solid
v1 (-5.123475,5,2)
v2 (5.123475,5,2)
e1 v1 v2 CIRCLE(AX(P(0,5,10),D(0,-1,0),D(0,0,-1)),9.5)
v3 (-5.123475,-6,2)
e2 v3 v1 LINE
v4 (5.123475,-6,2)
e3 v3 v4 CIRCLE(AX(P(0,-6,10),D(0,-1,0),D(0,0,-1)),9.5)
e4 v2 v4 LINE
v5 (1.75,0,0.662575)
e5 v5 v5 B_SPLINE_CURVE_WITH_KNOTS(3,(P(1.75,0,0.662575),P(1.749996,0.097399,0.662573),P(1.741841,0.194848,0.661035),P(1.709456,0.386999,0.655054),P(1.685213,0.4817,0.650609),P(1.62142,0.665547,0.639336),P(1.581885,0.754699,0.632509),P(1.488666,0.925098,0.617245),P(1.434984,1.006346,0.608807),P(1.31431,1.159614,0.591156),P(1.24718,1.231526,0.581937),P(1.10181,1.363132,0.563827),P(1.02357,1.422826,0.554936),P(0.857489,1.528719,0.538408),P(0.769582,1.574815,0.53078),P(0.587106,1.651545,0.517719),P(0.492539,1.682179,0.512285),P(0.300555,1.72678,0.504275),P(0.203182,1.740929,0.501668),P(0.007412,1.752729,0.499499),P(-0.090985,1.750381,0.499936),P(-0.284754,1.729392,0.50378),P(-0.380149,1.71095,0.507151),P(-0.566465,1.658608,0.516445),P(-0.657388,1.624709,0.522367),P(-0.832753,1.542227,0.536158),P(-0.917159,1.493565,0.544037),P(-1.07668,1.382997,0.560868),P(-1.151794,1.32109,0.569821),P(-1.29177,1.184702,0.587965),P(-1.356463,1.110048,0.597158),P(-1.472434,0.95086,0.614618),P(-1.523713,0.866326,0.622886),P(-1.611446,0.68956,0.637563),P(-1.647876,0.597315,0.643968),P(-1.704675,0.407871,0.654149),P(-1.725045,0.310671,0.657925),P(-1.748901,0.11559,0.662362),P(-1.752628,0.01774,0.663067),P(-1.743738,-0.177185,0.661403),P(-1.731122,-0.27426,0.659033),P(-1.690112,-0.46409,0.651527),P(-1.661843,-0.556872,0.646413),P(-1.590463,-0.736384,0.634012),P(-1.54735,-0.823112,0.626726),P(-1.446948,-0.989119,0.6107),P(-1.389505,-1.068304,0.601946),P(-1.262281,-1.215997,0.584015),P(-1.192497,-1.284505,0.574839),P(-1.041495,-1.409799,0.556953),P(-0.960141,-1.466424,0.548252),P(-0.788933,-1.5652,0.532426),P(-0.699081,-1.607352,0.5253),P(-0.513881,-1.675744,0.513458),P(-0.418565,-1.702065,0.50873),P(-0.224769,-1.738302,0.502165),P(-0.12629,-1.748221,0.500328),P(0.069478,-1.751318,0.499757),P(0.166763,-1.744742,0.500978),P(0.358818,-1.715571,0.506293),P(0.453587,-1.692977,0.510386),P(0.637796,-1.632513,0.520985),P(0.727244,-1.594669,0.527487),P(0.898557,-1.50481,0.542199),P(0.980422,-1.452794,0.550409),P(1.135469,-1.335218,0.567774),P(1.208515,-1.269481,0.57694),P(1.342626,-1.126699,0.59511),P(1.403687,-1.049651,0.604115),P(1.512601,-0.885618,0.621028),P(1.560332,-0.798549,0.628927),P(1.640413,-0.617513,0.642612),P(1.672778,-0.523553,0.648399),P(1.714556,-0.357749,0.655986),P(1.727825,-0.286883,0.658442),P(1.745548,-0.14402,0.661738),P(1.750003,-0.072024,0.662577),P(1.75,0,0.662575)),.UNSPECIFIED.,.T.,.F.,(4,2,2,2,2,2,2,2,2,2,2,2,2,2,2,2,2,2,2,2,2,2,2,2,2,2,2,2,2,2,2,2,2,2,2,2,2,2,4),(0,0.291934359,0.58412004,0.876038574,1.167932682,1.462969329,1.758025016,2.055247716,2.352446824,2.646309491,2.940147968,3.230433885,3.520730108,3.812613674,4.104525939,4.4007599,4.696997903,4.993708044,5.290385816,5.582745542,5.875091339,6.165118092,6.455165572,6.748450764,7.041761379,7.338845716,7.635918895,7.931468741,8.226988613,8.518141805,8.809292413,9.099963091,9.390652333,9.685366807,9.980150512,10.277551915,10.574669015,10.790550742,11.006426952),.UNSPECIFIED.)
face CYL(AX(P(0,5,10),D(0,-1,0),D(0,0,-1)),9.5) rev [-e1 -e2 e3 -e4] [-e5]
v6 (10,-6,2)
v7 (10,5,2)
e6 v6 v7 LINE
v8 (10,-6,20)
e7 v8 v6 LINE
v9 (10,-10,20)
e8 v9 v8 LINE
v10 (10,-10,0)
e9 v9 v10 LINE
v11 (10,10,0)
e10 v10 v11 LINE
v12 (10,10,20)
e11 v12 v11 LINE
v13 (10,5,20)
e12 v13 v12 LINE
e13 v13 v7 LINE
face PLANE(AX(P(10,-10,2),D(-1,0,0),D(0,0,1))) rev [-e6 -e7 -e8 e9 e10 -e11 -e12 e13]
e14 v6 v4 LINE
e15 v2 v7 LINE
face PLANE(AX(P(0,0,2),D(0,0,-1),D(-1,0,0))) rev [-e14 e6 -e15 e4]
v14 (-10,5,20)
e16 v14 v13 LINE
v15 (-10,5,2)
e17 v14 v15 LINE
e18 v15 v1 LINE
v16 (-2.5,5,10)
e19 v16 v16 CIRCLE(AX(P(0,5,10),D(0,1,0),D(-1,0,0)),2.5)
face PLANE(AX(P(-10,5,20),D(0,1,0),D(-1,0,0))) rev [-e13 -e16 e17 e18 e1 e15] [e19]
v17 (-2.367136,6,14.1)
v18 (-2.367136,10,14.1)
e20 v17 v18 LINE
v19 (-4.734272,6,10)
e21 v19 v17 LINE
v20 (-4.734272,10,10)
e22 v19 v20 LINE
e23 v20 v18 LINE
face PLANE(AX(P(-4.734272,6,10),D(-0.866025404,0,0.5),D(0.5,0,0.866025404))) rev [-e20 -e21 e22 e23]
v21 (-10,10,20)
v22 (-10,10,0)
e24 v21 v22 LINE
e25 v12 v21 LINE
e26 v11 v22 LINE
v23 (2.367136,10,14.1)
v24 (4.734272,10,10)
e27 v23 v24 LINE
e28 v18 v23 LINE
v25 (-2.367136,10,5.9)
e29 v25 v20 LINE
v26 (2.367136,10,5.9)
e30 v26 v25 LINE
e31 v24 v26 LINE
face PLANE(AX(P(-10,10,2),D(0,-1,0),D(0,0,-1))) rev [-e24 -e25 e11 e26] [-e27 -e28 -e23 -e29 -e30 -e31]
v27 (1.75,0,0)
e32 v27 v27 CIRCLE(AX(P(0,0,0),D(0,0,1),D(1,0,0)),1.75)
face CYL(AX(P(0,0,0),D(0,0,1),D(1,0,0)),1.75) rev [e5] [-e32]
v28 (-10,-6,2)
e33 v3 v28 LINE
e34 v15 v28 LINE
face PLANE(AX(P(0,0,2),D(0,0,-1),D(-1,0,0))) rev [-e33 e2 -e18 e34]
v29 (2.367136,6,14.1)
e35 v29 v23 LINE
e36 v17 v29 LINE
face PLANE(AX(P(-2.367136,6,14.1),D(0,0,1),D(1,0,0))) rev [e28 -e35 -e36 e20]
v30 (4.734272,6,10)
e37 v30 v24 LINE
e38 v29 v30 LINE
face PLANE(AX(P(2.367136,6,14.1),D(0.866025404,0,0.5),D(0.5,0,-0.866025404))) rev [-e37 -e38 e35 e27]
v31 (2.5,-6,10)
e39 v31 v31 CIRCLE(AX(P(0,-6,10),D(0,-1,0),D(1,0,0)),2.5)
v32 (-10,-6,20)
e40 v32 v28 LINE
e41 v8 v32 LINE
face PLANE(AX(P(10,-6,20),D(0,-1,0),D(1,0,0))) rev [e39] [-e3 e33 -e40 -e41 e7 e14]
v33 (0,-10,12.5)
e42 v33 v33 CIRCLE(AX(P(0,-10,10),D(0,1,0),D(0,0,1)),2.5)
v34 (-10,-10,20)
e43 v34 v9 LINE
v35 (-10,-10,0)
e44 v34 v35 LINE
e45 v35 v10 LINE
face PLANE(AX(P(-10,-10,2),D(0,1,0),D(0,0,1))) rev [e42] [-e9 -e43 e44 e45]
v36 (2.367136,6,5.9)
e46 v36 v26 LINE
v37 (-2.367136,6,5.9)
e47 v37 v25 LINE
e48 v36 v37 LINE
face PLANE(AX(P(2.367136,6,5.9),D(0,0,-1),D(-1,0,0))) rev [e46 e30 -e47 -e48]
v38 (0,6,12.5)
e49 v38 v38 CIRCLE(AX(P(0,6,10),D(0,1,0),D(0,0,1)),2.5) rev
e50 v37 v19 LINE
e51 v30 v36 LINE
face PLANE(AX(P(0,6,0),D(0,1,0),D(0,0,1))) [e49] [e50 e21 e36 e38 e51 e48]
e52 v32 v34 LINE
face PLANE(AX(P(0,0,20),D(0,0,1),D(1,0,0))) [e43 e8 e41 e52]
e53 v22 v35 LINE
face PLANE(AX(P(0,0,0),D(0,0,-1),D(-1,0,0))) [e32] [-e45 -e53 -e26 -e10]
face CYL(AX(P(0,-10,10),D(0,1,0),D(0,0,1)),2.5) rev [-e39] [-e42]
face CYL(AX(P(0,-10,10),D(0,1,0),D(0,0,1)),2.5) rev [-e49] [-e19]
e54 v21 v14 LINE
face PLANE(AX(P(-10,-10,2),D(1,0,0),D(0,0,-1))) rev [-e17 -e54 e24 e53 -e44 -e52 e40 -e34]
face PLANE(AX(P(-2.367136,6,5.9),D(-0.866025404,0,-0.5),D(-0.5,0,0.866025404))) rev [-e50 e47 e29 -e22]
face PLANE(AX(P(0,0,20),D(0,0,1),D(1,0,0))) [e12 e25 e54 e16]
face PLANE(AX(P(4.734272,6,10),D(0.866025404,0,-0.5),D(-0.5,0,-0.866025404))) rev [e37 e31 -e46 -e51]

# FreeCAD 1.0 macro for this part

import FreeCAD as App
import Part
import Sketcher
Q = App.Units.Quantity


def add_polygon(sketch, points):
    """Adds a closed chain of lines whose ends are joined by coincident constraints."""
    first, n = sketch.GeometryCount, len(points)
    for a, b in zip(points, points[1:] + points[:1]):
        sketch.addGeometry(Part.LineSegment(App.Vector(*a, 0), App.Vector(*b, 0)), False)
    for i in range(n):
        sketch.addConstraint(Sketcher.Constraint("Coincident", first + i, 2, first + (i + 1) % n, 1))

doc = App.newDocument("Part")
body = doc.addObject("PartDesign::Body", "Body")

sketch1 = doc.addObject("Sketcher::SketchObject", "Sketch")
body.addObject(sketch1)
sketch1.AttachmentSupport = (doc.XY_Plane, [""])
sketch1.MapMode = "FlatFace"
add_polygon(sketch1, [(-10, 10), (-10, -10), (10, -10), (10, 10)])
sketch1.addConstraint([
    Sketcher.Constraint("Vertical", 0),
    Sketcher.Constraint("Horizontal", 1),
    Sketcher.Constraint("Vertical", 2),
    Sketcher.Constraint("Horizontal", 3),
    Sketcher.Constraint("Symmetric", 0, 2, 2, 2, -1, 1),
    Sketcher.Constraint("Equal", 3, 0),
    Sketcher.Constraint("DistanceX", 1, 1, 1, 2, 20.0),
])
pad1 = doc.addObject("PartDesign::Pad", "Pad")
body.addObject(pad1)
pad1.Profile = sketch1
pad1.Length = 2

sketch2 = doc.addObject("Sketcher::SketchObject", "Sketch001")
body.addObject(sketch2)
sketch2.AttachmentSupport = (doc.XY_Plane, [""])
sketch2.MapMode = "FlatFace"
sketch2.AttachmentOffset = App.Placement(App.Vector(0, 0, 2), App.Rotation())
sketch2.addGeometry(Part.Circle(App.Vector(0, 0, 0), App.Vector(0, 0, 1), 1.8), False)
sketch2.addConstraint([
    Sketcher.Constraint("Coincident", 0, 3, -1, 1),
    Sketcher.Constraint("Diameter", 0, 3.5),
])
pocket1 = doc.addObject("PartDesign::Pocket", "Pocket")
body.addObject(pocket1)
pocket1.Profile = sketch2
pocket1.Type = "ThroughAll"

sketch3 = doc.addObject("Sketcher::SketchObject", "Sketch002")
body.addObject(sketch3)
sketch3.AttachmentSupport = (doc.XY_Plane, [""])
sketch3.MapMode = "FlatFace"
sketch3.AttachmentOffset = App.Placement(App.Vector(0, 0, 2), App.Rotation())
add_polygon(sketch3, [(-10, 10), (-10, 5), (10, 5), (10, 10)])
add_polygon(sketch3, [(-10, -6), (-10, -10), (10, -10), (10, -6)])
sketch3.addConstraint([
    Sketcher.Constraint("Vertical", 0),
    Sketcher.Constraint("Horizontal", 1),
    Sketcher.Constraint("Vertical", 2),
    Sketcher.Constraint("Horizontal", 3),
    Sketcher.Constraint("Vertical", 4),
    Sketcher.Constraint("Horizontal", 5),
    Sketcher.Constraint("Vertical", 6),
    Sketcher.Constraint("Horizontal", 7),
    Sketcher.Constraint("Symmetric", 2, 2, 4, 2, -1, 1),
    Sketcher.Constraint("Vertical", 3, 2, 4, 2),
    Sketcher.Constraint("Vertical", 2, 2, 5, 2),
    Sketcher.Constraint("DistanceX", 1, 1, 1, 2, 20.0),
    Sketcher.Constraint("DistanceY", 0, 2, 0, 1, 5.0),
    Sketcher.Constraint("DistanceY", 4, 2, 4, 1, 4.0),
    Sketcher.Constraint("DistanceY", -1, 1, 0, 2, 5.0),
])
pad2 = doc.addObject("PartDesign::Pad", "Pad001")
body.addObject(pad2)
pad2.Profile = sketch3
pad2.Length = 18

sketch4 = doc.addObject("Sketcher::SketchObject", "Sketch003")
body.addObject(sketch4)
sketch4.AttachmentSupport = (doc.XZ_Plane, [""])
sketch4.MapMode = "FlatFace"
sketch4.AttachmentOffset = App.Placement(App.Vector(0, 0, -10), App.Rotation())
sketch4.addGeometry(Part.Circle(App.Vector(0, 10, 0), App.Vector(0, 0, 1), 2.5), False)
sketch4.addConstraint([
    Sketcher.Constraint("PointOnObject", 0, 3, -2),
    Sketcher.Constraint("Diameter", 0, 5.0),
    Sketcher.Constraint("DistanceY", -1, 1, 0, 3, 10.0),
])
pocket2 = doc.addObject("PartDesign::Pocket", "Pocket001")
body.addObject(pocket2)
pocket2.Profile = sketch4
pocket2.Type = "ThroughAll"
pocket2.Reversed = True

sketch5 = doc.addObject("Sketcher::SketchObject", "Sketch004")
body.addObject(sketch5)
sketch5.AttachmentSupport = (doc.XZ_Plane, [""])
sketch5.MapMode = "FlatFace"
sketch5.AttachmentOffset = App.Placement(App.Vector(0, 0, -10), App.Rotation())
add_polygon(sketch5, [(4.7, 10), (2.4, 5.9), (-2.4, 5.9), (-4.7, 10), (-2.4, 14.1), (2.4, 14.1)])
sketch5.addConstraint([
    Sketcher.Constraint("Horizontal", 1),
    Sketcher.Constraint("Horizontal", 4),
    Sketcher.Constraint("Symmetric", 2, 2, 5, 2, -2),
    Sketcher.Constraint("Parallel", 0, 3),
    Sketcher.Constraint("Parallel", 2, 5),
    Sketcher.Constraint("Vertical", 1, 2, 3, 2),
    Sketcher.Constraint("Vertical", 0, 2, 4, 2),
    Sketcher.Constraint("Angle", 0, Q("-120 deg")),
    Sketcher.Constraint("DistanceY", -1, 1, 2, 2, 10.0),
    Sketcher.Constraint("DistanceY", -1, 1, 0, 2, 5.9),
    Sketcher.Constraint("DistanceX", 1, 2, 1, 1, 4.734272),
])
pocket3 = doc.addObject("PartDesign::Pocket", "Pocket002")
body.addObject(pocket3)
pocket3.Profile = sketch5
pocket3.Length = 4
pocket3.Reversed = True

sketch6 = doc.addObject("Sketcher::SketchObject", "Sketch005")
body.addObject(sketch6)
sketch6.AttachmentSupport = (doc.XZ_Plane, [""])
sketch6.MapMode = "FlatFace"
sketch6.AttachmentOffset = App.Placement(App.Vector(0, 0, 6), App.Rotation())
sketch6.addGeometry(Part.Circle(App.Vector(0, 10, 0), App.Vector(0, 0, 1), 10), False)
sketch6.addConstraint([
    Sketcher.Constraint("PointOnObject", 0, 3, -2),
    Sketcher.Constraint("Diameter", 0, 19.0),
    Sketcher.Constraint("DistanceY", -1, 1, 0, 3, 10.0),
])
pocket4 = doc.addObject("PartDesign::Pocket", "Pocket003")
body.addObject(pocket4)
pocket4.Profile = sketch6
pocket4.Length = 11

doc.recompute()
